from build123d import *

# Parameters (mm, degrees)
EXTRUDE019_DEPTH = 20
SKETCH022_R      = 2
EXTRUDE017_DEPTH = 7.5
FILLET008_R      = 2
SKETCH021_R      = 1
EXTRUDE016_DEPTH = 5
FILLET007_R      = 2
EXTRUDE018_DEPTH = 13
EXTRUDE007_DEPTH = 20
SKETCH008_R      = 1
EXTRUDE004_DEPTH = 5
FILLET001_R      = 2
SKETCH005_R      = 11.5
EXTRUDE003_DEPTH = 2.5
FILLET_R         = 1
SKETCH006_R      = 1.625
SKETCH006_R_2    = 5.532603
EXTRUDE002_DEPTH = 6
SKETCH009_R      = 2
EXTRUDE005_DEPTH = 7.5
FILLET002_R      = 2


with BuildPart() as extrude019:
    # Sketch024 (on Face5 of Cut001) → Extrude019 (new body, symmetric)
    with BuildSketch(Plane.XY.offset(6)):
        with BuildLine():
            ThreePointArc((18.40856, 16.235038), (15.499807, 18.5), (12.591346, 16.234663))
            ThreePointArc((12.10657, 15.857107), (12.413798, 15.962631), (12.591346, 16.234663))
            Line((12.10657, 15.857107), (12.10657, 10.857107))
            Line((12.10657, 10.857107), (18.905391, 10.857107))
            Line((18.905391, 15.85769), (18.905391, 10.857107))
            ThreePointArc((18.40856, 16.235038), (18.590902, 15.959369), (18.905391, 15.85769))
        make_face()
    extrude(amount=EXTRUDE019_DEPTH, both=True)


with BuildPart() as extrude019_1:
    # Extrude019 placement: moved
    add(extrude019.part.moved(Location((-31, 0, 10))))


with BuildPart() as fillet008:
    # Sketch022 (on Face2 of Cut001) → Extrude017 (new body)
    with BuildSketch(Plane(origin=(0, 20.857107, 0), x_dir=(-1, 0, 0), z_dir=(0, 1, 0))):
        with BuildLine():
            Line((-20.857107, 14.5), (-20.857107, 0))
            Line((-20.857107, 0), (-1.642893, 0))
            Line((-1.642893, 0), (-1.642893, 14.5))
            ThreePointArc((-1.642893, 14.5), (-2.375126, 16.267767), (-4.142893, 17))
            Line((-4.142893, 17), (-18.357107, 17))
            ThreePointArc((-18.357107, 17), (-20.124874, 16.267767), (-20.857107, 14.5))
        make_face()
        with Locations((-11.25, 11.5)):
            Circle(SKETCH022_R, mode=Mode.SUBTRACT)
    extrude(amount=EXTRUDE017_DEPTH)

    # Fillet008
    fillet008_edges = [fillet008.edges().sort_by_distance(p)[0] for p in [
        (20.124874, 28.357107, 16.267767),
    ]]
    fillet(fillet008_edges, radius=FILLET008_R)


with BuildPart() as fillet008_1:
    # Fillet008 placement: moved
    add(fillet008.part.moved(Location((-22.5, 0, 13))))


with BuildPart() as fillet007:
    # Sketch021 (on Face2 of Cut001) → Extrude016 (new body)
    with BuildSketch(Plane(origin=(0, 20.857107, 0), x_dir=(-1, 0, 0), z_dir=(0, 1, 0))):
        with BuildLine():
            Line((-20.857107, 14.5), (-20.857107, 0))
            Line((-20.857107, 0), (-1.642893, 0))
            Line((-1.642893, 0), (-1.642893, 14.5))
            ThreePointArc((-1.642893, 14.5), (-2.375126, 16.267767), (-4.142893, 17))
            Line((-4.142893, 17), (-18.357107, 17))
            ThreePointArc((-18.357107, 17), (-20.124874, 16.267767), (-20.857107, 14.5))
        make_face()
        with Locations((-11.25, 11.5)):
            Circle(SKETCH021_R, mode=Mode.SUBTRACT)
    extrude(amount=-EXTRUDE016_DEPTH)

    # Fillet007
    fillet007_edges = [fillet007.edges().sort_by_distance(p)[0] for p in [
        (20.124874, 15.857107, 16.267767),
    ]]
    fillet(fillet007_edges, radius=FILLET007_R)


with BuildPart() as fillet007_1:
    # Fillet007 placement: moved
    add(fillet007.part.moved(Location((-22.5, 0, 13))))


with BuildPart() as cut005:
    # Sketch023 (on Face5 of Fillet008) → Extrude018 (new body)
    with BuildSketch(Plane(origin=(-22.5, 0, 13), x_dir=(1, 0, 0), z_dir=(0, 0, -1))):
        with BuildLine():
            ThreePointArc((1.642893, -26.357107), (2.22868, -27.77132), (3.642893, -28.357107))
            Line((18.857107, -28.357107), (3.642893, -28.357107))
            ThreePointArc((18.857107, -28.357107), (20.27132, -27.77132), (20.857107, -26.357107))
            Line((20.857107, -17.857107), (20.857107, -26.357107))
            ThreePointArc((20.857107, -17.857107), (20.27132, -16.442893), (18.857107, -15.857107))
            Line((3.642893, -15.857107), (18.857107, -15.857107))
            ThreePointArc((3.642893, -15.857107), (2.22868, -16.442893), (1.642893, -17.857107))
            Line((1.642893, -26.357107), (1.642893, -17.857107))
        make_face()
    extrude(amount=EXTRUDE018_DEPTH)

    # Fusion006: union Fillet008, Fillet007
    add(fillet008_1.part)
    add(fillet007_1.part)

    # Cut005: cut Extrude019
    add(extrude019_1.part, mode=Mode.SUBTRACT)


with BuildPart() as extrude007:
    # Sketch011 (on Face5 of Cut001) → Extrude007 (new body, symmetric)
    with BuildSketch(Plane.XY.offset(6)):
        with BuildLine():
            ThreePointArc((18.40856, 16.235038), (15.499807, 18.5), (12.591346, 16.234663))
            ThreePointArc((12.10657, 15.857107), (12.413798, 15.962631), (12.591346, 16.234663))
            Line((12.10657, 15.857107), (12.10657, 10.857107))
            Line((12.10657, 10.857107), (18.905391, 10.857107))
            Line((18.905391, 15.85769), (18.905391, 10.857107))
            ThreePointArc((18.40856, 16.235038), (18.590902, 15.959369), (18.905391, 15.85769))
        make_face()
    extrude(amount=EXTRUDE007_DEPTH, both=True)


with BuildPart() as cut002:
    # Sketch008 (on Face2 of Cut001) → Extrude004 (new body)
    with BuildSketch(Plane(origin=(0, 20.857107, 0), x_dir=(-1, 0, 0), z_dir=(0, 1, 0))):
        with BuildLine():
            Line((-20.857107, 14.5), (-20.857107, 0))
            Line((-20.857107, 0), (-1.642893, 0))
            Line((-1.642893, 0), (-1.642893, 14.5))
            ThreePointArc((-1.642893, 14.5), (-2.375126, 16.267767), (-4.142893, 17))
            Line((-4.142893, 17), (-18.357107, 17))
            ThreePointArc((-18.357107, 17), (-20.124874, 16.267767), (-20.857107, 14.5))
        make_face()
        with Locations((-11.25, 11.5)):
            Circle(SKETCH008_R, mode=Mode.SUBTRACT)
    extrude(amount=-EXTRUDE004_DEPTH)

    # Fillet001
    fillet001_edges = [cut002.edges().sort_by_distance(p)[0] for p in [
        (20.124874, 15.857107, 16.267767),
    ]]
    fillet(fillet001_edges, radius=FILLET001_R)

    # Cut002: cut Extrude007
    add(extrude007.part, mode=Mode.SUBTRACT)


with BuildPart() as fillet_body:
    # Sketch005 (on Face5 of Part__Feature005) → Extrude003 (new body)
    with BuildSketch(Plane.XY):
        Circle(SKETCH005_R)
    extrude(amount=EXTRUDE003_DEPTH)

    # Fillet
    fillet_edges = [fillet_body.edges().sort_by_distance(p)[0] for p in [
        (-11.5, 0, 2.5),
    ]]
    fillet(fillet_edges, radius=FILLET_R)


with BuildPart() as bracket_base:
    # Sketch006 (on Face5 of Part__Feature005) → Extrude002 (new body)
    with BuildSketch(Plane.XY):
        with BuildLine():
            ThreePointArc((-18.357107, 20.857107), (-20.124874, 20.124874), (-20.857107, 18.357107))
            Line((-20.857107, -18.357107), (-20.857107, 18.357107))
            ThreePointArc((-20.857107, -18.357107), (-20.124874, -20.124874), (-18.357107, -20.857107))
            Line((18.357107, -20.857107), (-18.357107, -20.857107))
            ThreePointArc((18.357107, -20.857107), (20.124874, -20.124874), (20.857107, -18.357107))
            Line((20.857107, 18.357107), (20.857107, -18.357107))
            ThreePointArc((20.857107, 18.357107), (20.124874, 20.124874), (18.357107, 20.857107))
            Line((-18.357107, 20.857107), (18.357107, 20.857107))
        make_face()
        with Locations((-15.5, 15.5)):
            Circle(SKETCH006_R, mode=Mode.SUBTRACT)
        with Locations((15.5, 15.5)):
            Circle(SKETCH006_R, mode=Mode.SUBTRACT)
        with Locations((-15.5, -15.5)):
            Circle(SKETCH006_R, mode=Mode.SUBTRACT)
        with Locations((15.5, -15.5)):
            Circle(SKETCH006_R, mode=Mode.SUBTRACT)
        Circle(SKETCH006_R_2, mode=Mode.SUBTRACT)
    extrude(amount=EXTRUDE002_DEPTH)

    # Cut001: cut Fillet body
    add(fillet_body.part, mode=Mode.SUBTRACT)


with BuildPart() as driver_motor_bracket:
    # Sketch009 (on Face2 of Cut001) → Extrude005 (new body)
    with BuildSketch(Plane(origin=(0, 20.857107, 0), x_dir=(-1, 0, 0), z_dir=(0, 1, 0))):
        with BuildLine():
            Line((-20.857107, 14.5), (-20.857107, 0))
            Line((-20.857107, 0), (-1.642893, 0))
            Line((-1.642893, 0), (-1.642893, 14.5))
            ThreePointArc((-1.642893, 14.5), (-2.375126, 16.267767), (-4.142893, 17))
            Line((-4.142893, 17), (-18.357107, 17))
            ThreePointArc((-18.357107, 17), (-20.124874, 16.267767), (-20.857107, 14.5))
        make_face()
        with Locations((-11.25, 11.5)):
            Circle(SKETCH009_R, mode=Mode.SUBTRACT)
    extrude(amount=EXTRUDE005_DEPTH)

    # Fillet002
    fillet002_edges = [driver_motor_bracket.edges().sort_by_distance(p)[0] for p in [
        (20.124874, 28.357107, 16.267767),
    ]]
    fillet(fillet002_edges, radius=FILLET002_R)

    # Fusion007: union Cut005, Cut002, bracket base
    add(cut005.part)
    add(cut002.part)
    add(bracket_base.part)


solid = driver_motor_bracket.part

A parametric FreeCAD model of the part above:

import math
import FreeCAD as App
import Part
import Sketcher
from FreeCAD import Vector


def edges_at(feature, points):
    """Names of the edges that pass closest to the given points."""
    edges = feature.Shape.Edges
    near = lambda p: min(range(len(edges)), key=lambda i: edges[i].distToShape(Part.Vertex(*p))[0])
    return sorted({f"Edge{near(p) + 1}" for p in points})

doc = App.newDocument("Part")
body = doc.addObject("PartDesign::Body", "Body")

sketch1 = body.newObject("Sketcher::SketchObject", "Sketch")
sketch1.AttachmentSupport = (doc.getObject("XY_Plane"), [""])
sketch1.MapMode = "FlatFace"
sketch1.AttachmentOffset = App.Placement(Vector(0, 0, 6), App.Rotation())
sketch1.addGeometry([
    Part.ArcOfCircle(Part.Circle(Vector(15.5, 15.5, 0), Vector(0, 0, 1), 3), math.radians(14.182582), math.radians(165.824805)),
    Part.ArcOfCircle(Part.Circle(Vector(12.106571, 16.357106, 0), Vector(0, 0, 1), 0.499999), math.radians(-90.000091), math.radians(-14.175159)),
    Part.LineSegment(Vector(12.10657, 15.857107, 0), Vector(12.10657, 10.857107, 0)),
    Part.LineSegment(Vector(12.10657, 10.857107, 0), Vector(18.905391, 10.857107, 0)),
    Part.LineSegment(Vector(18.905391, 10.857107, 0), Vector(18.905391, 15.85769, 0)),
    Part.ArcOfCircle(Part.Circle(Vector(18.89332, 16.357544, 0), Vector(0, 0, 1), 0.499999), math.radians(-165.817479), math.radians(-88.616572)),
], False)
sketch1.addConstraint([
    Sketcher.Constraint("Tangent", 0, 2, 1, 2),
    Sketcher.Constraint("Coincident", 1, 1, 2, 1),
    Sketcher.Constraint("Coincident", 2, 2, 3, 1),
    Sketcher.Constraint("Coincident", 3, 2, 4, 1),
    Sketcher.Constraint("Coincident", 4, 2, 5, 2),
    Sketcher.Constraint("Tangent", 5, 1, 0, 1),
    Sketcher.Constraint("Vertical", 2),
    Sketcher.Constraint("Horizontal", 3),
    Sketcher.Constraint("Vertical", 4),
    Sketcher.Constraint("Equal", 1, 5),
    Sketcher.Constraint("Radius", 0, 3.0),
    Sketcher.Constraint("Radius", 1, 0.499999),
    Sketcher.Constraint("DistanceY", 2, 2, 2, 1, 5.0),
    Sketcher.Constraint("DistanceX", -1, 1, 0, 3, 15.5),
    Sketcher.Constraint("DistanceY", -1, 1, 0, 3, 15.5),
    Sketcher.Constraint("DistanceX", 3, 1, 3, 2, 6.798821),
    Sketcher.Constraint("DistanceY", 4, 1, 4, 2, 5.000583),
    Sketcher.Constraint("DistanceX", -1, 1, 1, 3, 12.106571),
    Sketcher.Constraint("DistanceX", -1, 1, 1, 1, 12.10657),
])
pad1 = body.newObject("PartDesign::Pad", "Pad")
pad1.Profile = sketch1
pad1.Length = 40
pad1.Midplane = True
body2 = doc.addObject("PartDesign::Body", "Body001")
doc.recompute()

body.Placement = App.Placement(Vector(-31, 0, 10), App.Rotation(Vector(0, 0, 1), 0))
boolean = body2.newObject("PartDesign::Boolean", "Boolean")
boolean.Type = "Fuse"
boolean.addObjects([body])
body3 = doc.addObject("PartDesign::Body", "Body002")

sketch2 = body3.newObject("Sketcher::SketchObject", "Sketch001")
sketch2.AttachmentSupport = (doc.getObject("XZ_Plane002"), [""])
sketch2.MapMode = "FlatFace"
sketch2.AttachmentOffset = App.Placement(Vector(0, 0, -20.857107), App.Rotation())
sketch2.addGeometry([
    Part.LineSegment(Vector(20.857107, 14.5, 0), Vector(20.857107, 0, 0)),
    Part.LineSegment(Vector(20.857107, 0, 0), Vector(1.642893, 0, 0)),
    Part.LineSegment(Vector(1.642893, 0, 0), Vector(1.642893, 14.5, 0)),
    Part.ArcOfCircle(Part.Circle(Vector(4.142893, 14.5, 0), Vector(0, 0, 1), 2.5), math.radians(89.999996), math.radians(180.000004)),
    Part.LineSegment(Vector(4.142893, 17, 0), Vector(18.357107, 17, 0)),
    Part.ArcOfCircle(Part.Circle(Vector(18.357107, 14.5, 0), Vector(0, 0, 1), 2.5), math.radians(-0.000004), math.radians(90.000004)),
    Part.Circle(Vector(11.25, 11.5, 0), Vector(0, 0, 1), 2),
], False)
sketch2.addConstraint([
    Sketcher.Constraint("Coincident", 0, 2, 1, 1),
    Sketcher.Constraint("Coincident", 1, 2, 2, 1),
    Sketcher.Constraint("Tangent", 2, 2, 3, 2),
    Sketcher.Constraint("Tangent", 3, 1, 4, 1),
    Sketcher.Constraint("Tangent", 4, 2, 5, 2),
    Sketcher.Constraint("Tangent", 5, 1, 0, 1),
    Sketcher.Constraint("Vertical", 0),
    Sketcher.Constraint("Horizontal", 1),
    Sketcher.Constraint("Vertical", 2),
    Sketcher.Constraint("Horizontal", 4),
    Sketcher.Constraint("Equal", 3, 5),
    Sketcher.Constraint("PointOnObject", 0, 2, -1),
    Sketcher.Constraint("Diameter", 6, 4.0),
    Sketcher.Constraint("Radius", 3, 2.5),
    Sketcher.Constraint("DistanceY", 0, 2, 0, 1, 14.5),
    Sketcher.Constraint("DistanceY", 6, 3, 5, 3, 3.0),
    Sketcher.Constraint("DistanceX", -1, 1, 6, 3, 11.25),
    Sketcher.Constraint("DistanceX", 1, 2, 1, 1, 19.214214),
    Sketcher.Constraint("DistanceX", -1, 1, 3, 3, 4.142893),
])
pad2 = body3.newObject("PartDesign::Pad", "Pad001")
pad2.Profile = sketch2
pad2.Length = 7.5
pad2.Reversed = True
doc.recompute()

fillet = body3.newObject("PartDesign::Fillet", "Fillet")
fillet.Base = (pad2, edges_at(pad2, [(20.125, 28.357, 16.268)]))
fillet.Radius = 2
body4 = doc.addObject("PartDesign::Body", "Body003")
doc.recompute()

body3.Placement = App.Placement(Vector(-22.5, 0, 13), App.Rotation(Vector(0, 0, 1), 0))
boolean2 = body4.newObject("PartDesign::Boolean", "Boolean001")
boolean2.Type = "Fuse"
boolean2.addObjects([body3])
body5 = doc.addObject("PartDesign::Body", "Body004")

sketch3 = body5.newObject("Sketcher::SketchObject", "Sketch002")
sketch3.AttachmentSupport = (doc.getObject("XZ_Plane004"), [""])
sketch3.MapMode = "FlatFace"
sketch3.AttachmentOffset = App.Placement(Vector(0, 0, -20.857107), App.Rotation())
sketch3.addGeometry([
    Part.LineSegment(Vector(20.857107, 14.5, 0), Vector(20.857107, 0, 0)),
    Part.LineSegment(Vector(20.857107, 0, 0), Vector(1.642893, 0, 0)),
    Part.LineSegment(Vector(1.642893, 0, 0), Vector(1.642893, 14.5, 0)),
    Part.ArcOfCircle(Part.Circle(Vector(4.142893, 14.5, 0), Vector(0, 0, 1), 2.5), math.radians(89.999996), math.radians(180.000004)),
    Part.LineSegment(Vector(4.142893, 17, 0), Vector(18.357107, 17, 0)),
    Part.ArcOfCircle(Part.Circle(Vector(18.357107, 14.5, 0), Vector(0, 0, 1), 2.5), math.radians(-0.000004), math.radians(90.000004)),
    Part.Circle(Vector(11.25, 11.5, 0), Vector(0, 0, 1), 1),
], False)
sketch3.addConstraint([
    Sketcher.Constraint("Coincident", 0, 2, 1, 1),
    Sketcher.Constraint("Coincident", 1, 2, 2, 1),
    Sketcher.Constraint("Tangent", 2, 2, 3, 2),
    Sketcher.Constraint("Tangent", 3, 1, 4, 1),
    Sketcher.Constraint("Tangent", 4, 2, 5, 2),
    Sketcher.Constraint("Tangent", 5, 1, 0, 1),
    Sketcher.Constraint("Vertical", 0),
    Sketcher.Constraint("Horizontal", 1),
    Sketcher.Constraint("Vertical", 2),
    Sketcher.Constraint("Horizontal", 4),
    Sketcher.Constraint("Equal", 3, 5),
    Sketcher.Constraint("PointOnObject", 0, 2, -1),
    Sketcher.Constraint("Diameter", 6, 2.0),
    Sketcher.Constraint("Radius", 3, 2.5),
    Sketcher.Constraint("DistanceY", 0, 2, 0, 1, 14.5),
    Sketcher.Constraint("DistanceY", 6, 3, 5, 3, 3.0),
    Sketcher.Constraint("DistanceX", -1, 1, 6, 3, 11.25),
    Sketcher.Constraint("DistanceX", 1, 2, 1, 1, 19.214214),
    Sketcher.Constraint("DistanceX", -1, 1, 3, 3, 4.142893),
])
pad3 = body5.newObject("PartDesign::Pad", "Pad002")
pad3.Profile = sketch3
pad3.Length = 5
doc.recompute()

fillet2 = body5.newObject("PartDesign::Fillet", "Fillet001")
fillet2.Base = (pad3, edges_at(pad3, [(20.125, 15.857, 16.268)]))
fillet2.Radius = 2
body6 = doc.addObject("PartDesign::Body", "Body005")
doc.recompute()

body5.Placement = App.Placement(Vector(-22.5, 0, 13), App.Rotation(Vector(0, 0, 1), 0))
boolean3 = body6.newObject("PartDesign::Boolean", "Boolean002")
boolean3.Type = "Fuse"
boolean3.addObjects([body5])
body7 = doc.addObject("PartDesign::Body", "Body006")

sketch4 = body7.newObject("Sketcher::SketchObject", "Sketch003")
sketch4.AttachmentSupport = (doc.getObject("XY_Plane006"), [""])
sketch4.MapMode = "FlatFace"
sketch4.AttachmentOffset = App.Placement(Vector(0, 0, 13), App.Rotation())
sketch4.addGeometry([
    Part.ArcOfCircle(Part.Circle(Vector(-18.857105, 26.357105, 0), Vector(0, 0, 1), 2.000002), math.radians(90.000055), math.radians(179.999945)),
    Part.LineSegment(Vector(-18.857107, 28.357107, 0), Vector(-3.642893, 28.357107, 0)),
    Part.ArcOfCircle(Part.Circle(Vector(-3.642895, 26.357105, 0), Vector(0, 0, 1), 2.000002), math.radians(0.000055), math.radians(89.999945)),
    Part.LineSegment(Vector(-1.642893, 26.357107, 0), Vector(-1.642893, 17.857107, 0)),
    Part.ArcOfCircle(Part.Circle(Vector(-3.642893, 17.857107, 0), Vector(0, 0, 1), 2), math.radians(-89.999994), math.radians(-0.000006)),
    Part.LineSegment(Vector(-3.642893, 15.857107, 0), Vector(-18.857107, 15.857107, 0)),
    Part.ArcOfCircle(Part.Circle(Vector(-18.857107, 17.857107, 0), Vector(0, 0, 1), 2), math.radians(-179.999994), math.radians(-90.000006)),
    Part.LineSegment(Vector(-20.857107, 17.857107, 0), Vector(-20.857107, 26.357107, 0)),
], False)
sketch4.addConstraint([
    Sketcher.Constraint("Tangent", 0, 1, 1, 1),
    Sketcher.Constraint("Tangent", 1, 2, 2, 2),
    Sketcher.Constraint("Tangent", 2, 1, 3, 1),
    Sketcher.Constraint("Tangent", 3, 2, 4, 2),
    Sketcher.Constraint("Tangent", 4, 1, 5, 1),
    Sketcher.Constraint("Tangent", 5, 2, 6, 2),
    Sketcher.Constraint("Tangent", 6, 1, 7, 1),
    Sketcher.Constraint("Tangent", 7, 2, 0, 2),
    Sketcher.Constraint("Horizontal", 1),
    Sketcher.Constraint("Vertical", 3),
    Sketcher.Constraint("Horizontal", 5),
    Sketcher.Constraint("Vertical", 7),
    Sketcher.Constraint("Equal", 0, 2),
    Sketcher.Constraint("Equal", 2, 4),
    Sketcher.Constraint("Equal", 4, 6),
    Sketcher.Constraint("Radius", 0, 2.000002),
    Sketcher.Constraint("DistanceY", 3, 2, 3, 1, 8.5),
    Sketcher.Constraint("DistanceX", 1, 1, 1, 2, 15.214214),
    Sketcher.Constraint("DistanceX", 0, 3, -1, 1, 18.857105),
    Sketcher.Constraint("DistanceY", -1, 1, 0, 3, 26.357105),
])
pad4 = body7.newObject("PartDesign::Pad", "Pad003")
pad4.Profile = sketch4
pad4.Length = 13
pad4.Reversed = True
doc.recompute()

boolean4 = body7.newObject("PartDesign::Boolean", "Boolean003")
boolean4.Type = "Fuse"
boolean4.addObjects([body4])
doc.recompute()

boolean5 = body7.newObject("PartDesign::Boolean", "Boolean004")
boolean5.Type = "Fuse"
boolean5.addObjects([body6])
doc.recompute()

boolean6 = body7.newObject("PartDesign::Boolean", "Boolean005")
boolean6.Type = "Cut"
boolean6.addObjects([body2])
body8 = doc.addObject("PartDesign::Body", "Body007")

sketch5 = body8.newObject("Sketcher::SketchObject", "Sketch004")
sketch5.AttachmentSupport = (doc.getObject("XY_Plane007"), [""])
sketch5.MapMode = "FlatFace"
sketch5.AttachmentOffset = App.Placement(Vector(0, 0, 6), App.Rotation())
sketch5.addGeometry([
    Part.ArcOfCircle(Part.Circle(Vector(15.5, 15.5, 0), Vector(0, 0, 1), 3), math.radians(14.182582), math.radians(165.824805)),
    Part.ArcOfCircle(Part.Circle(Vector(12.106571, 16.357106, 0), Vector(0, 0, 1), 0.499999), math.radians(-90.000091), math.radians(-14.175159)),
    Part.LineSegment(Vector(12.10657, 15.857107, 0), Vector(12.10657, 10.857107, 0)),
    Part.LineSegment(Vector(12.10657, 10.857107, 0), Vector(18.905391, 10.857107, 0)),
    Part.LineSegment(Vector(18.905391, 10.857107, 0), Vector(18.905391, 15.85769, 0)),
    Part.ArcOfCircle(Part.Circle(Vector(18.89332, 16.357544, 0), Vector(0, 0, 1), 0.499999), math.radians(-165.817479), math.radians(-88.616572)),
], False)
sketch5.addConstraint([
    Sketcher.Constraint("Tangent", 0, 2, 1, 2),
    Sketcher.Constraint("Coincident", 1, 1, 2, 1),
    Sketcher.Constraint("Coincident", 2, 2, 3, 1),
    Sketcher.Constraint("Coincident", 3, 2, 4, 1),
    Sketcher.Constraint("Coincident", 4, 2, 5, 2),
    Sketcher.Constraint("Tangent", 5, 1, 0, 1),
    Sketcher.Constraint("Vertical", 2),
    Sketcher.Constraint("Horizontal", 3),
    Sketcher.Constraint("Vertical", 4),
    Sketcher.Constraint("Equal", 1, 5),
    Sketcher.Constraint("Radius", 0, 3.0),
    Sketcher.Constraint("Radius", 1, 0.499999),
    Sketcher.Constraint("DistanceY", 2, 2, 2, 1, 5.0),
    Sketcher.Constraint("DistanceX", -1, 1, 0, 3, 15.5),
    Sketcher.Constraint("DistanceY", -1, 1, 0, 3, 15.5),
    Sketcher.Constraint("DistanceX", 3, 1, 3, 2, 6.798821),
    Sketcher.Constraint("DistanceY", 4, 1, 4, 2, 5.000583),
    Sketcher.Constraint("DistanceX", -1, 1, 1, 3, 12.106571),
    Sketcher.Constraint("DistanceX", -1, 1, 1, 1, 12.10657),
])
pad5 = body8.newObject("PartDesign::Pad", "Pad004")
pad5.Profile = sketch5
pad5.Length = 40
pad5.Midplane = True
body9 = doc.addObject("PartDesign::Body", "Body008")

sketch6 = body9.newObject("Sketcher::SketchObject", "Sketch005")
sketch6.AttachmentSupport = (doc.getObject("XZ_Plane008"), [""])
sketch6.MapMode = "FlatFace"
sketch6.AttachmentOffset = App.Placement(Vector(0, 0, -20.857107), App.Rotation())
sketch6.addGeometry([
    Part.LineSegment(Vector(20.857107, 14.5, 0), Vector(20.857107, 0, 0)),
    Part.LineSegment(Vector(20.857107, 0, 0), Vector(1.642893, 0, 0)),
    Part.LineSegment(Vector(1.642893, 0, 0), Vector(1.642893, 14.5, 0)),
    Part.ArcOfCircle(Part.Circle(Vector(4.142893, 14.5, 0), Vector(0, 0, 1), 2.5), math.radians(89.999996), math.radians(180.000004)),
    Part.LineSegment(Vector(4.142893, 17, 0), Vector(18.357107, 17, 0)),
    Part.ArcOfCircle(Part.Circle(Vector(18.357107, 14.5, 0), Vector(0, 0, 1), 2.5), math.radians(-0.000004), math.radians(90.000004)),
    Part.Circle(Vector(11.25, 11.5, 0), Vector(0, 0, 1), 1),
], False)
sketch6.addConstraint([
    Sketcher.Constraint("Coincident", 0, 2, 1, 1),
    Sketcher.Constraint("Coincident", 1, 2, 2, 1),
    Sketcher.Constraint("Tangent", 2, 2, 3, 2),
    Sketcher.Constraint("Tangent", 3, 1, 4, 1),
    Sketcher.Constraint("Tangent", 4, 2, 5, 2),
    Sketcher.Constraint("Tangent", 5, 1, 0, 1),
    Sketcher.Constraint("Vertical", 0),
    Sketcher.Constraint("Horizontal", 1),
    Sketcher.Constraint("Vertical", 2),
    Sketcher.Constraint("Horizontal", 4),
    Sketcher.Constraint("Equal", 3, 5),
    Sketcher.Constraint("PointOnObject", 0, 2, -1),
    Sketcher.Constraint("Diameter", 6, 2.0),
    Sketcher.Constraint("Radius", 3, 2.5),
    Sketcher.Constraint("DistanceY", 0, 2, 0, 1, 14.5),
    Sketcher.Constraint("DistanceY", 6, 3, 5, 3, 3.0),
    Sketcher.Constraint("DistanceX", -1, 1, 6, 3, 11.25),
    Sketcher.Constraint("DistanceX", 1, 2, 1, 1, 19.214214),
    Sketcher.Constraint("DistanceX", -1, 1, 3, 3, 4.142893),
])
pad6 = body9.newObject("PartDesign::Pad", "Pad005")
pad6.Profile = sketch6
pad6.Length = 5
doc.recompute()

fillet3 = body9.newObject("PartDesign::Fillet", "Fillet002")
fillet3.Base = (pad6, edges_at(pad6, [(20.125, 15.857, 16.268)]))
fillet3.Radius = 2
doc.recompute()

boolean7 = body9.newObject("PartDesign::Boolean", "Boolean006")
boolean7.Type = "Cut"
boolean7.addObjects([body8])
body10 = doc.addObject("PartDesign::Body", "Body009")

sketch7 = body10.newObject("Sketcher::SketchObject", "Sketch006")
sketch7.AttachmentSupport = (doc.getObject("XY_Plane009"), [""])
sketch7.MapMode = "FlatFace"
sketch7.addGeometry(Part.Circle(Vector(0, 0, 0), Vector(0, 0, 1), 11.5), False)
sketch7.addConstraint([
    Sketcher.Constraint("Coincident", 0, 3, -1, 1),
    Sketcher.Constraint("Diameter", 0, 23.0),
])
pad7 = body10.newObject("PartDesign::Pad", "Pad006")
pad7.Profile = sketch7
pad7.Length = 2.5
doc.recompute()

fillet4 = body10.newObject("PartDesign::Fillet", "Fillet003")
fillet4.Base = (pad7, edges_at(pad7, [(-11.5, 0, 2.5)]))
fillet4.Radius = 1
body11 = doc.addObject("PartDesign::Body", "Body010")

sketch8 = body11.newObject("Sketcher::SketchObject", "Sketch007")
sketch8.AttachmentSupport = (doc.getObject("XY_Plane010"), [""])
sketch8.MapMode = "FlatFace"
sketch8.addGeometry([
    Part.ArcOfCircle(Part.Circle(Vector(-18.357107, 18.357107, 0), Vector(0, 0, 1), 2.5), math.radians(89.999996), math.radians(180.000004)),
    Part.LineSegment(Vector(-20.857107, 18.357107, 0), Vector(-20.857107, -18.357107, 0)),
    Part.ArcOfCircle(Part.Circle(Vector(-18.357107, -18.357107, 0), Vector(0, 0, 1), 2.5), math.radians(179.999996), math.radians(270.000004)),
    Part.LineSegment(Vector(-18.357107, -20.857107, 0), Vector(18.357107, -20.857107, 0)),
    Part.ArcOfCircle(Part.Circle(Vector(18.357107, -18.357107, 0), Vector(0, 0, 1), 2.5), math.radians(-90.000004), math.radians(0.000004)),
    Part.LineSegment(Vector(20.857107, -18.357107, 0), Vector(20.857107, 18.357107, 0)),
    Part.ArcOfCircle(Part.Circle(Vector(18.357107, 18.357107, 0), Vector(0, 0, 1), 2.5), math.radians(-0.000004), math.radians(90.000004)),
    Part.LineSegment(Vector(18.357107, 20.857107, 0), Vector(-18.357107, 20.857107, 0)),
    Part.Circle(Vector(-15.5, -15.5, 0), Vector(0, 0, 1), 1.625),
    Part.Circle(Vector(15.5, -15.5, 0), Vector(0, 0, 1), 1.625),
    Part.Circle(Vector(-15.5, 15.5, 0), Vector(0, 0, 1), 1.625),
    Part.Circle(Vector(0, 0, 0), Vector(0, 0, 1), 5.532603),
    Part.Circle(Vector(15.5, 15.5, 0), Vector(0, 0, 1), 1.625),
], False)
sketch8.addConstraint([
    Sketcher.Constraint("Tangent", 0, 2, 1, 1),
    Sketcher.Constraint("Tangent", 1, 2, 2, 1),
    Sketcher.Constraint("Tangent", 2, 2, 3, 1),
    Sketcher.Constraint("Tangent", 3, 2, 4, 1),
    Sketcher.Constraint("Tangent", 4, 2, 5, 1),
    Sketcher.Constraint("Tangent", 5, 2, 6, 1),
    Sketcher.Constraint("Tangent", 6, 2, 7, 1),
    Sketcher.Constraint("Tangent", 7, 2, 0, 1),
    Sketcher.Constraint("Vertical", 1),
    Sketcher.Constraint("Horizontal", 3),
    Sketcher.Constraint("Vertical", 5),
    Sketcher.Constraint("Horizontal", 7),
    Sketcher.Constraint("Coincident", 11, 3, -1, 1),
    Sketcher.Constraint("Equal", 0, 2),
    Sketcher.Constraint("Equal", 2, 4),
    Sketcher.Constraint("Equal", 4, 6),
    Sketcher.Constraint("Equal", 8, 9),
    Sketcher.Constraint("Equal", 9, 10),
    Sketcher.Constraint("Equal", 10, 12),
    Sketcher.Constraint("Symmetric", 0, 3, 4, 3, -1, 1),
    Sketcher.Constraint("Symmetric", 9, 3, 10, 3, -1, 1),
    Sketcher.Constraint("Symmetric", 8, 3, 12, 3, -1, 1),
    Sketcher.Constraint("Symmetric", 8, 3, 9, 3, -2),
    Sketcher.Constraint("Equal", 7, 1),
    Sketcher.Constraint("Radius", 0, 2.5),
    Sketcher.Constraint("Diameter", 8, 3.25),
    Sketcher.Constraint("DistanceX", 8, 3, 9, 3, 31.0),
    Sketcher.Constraint("DistanceY", 8, 3, 10, 3, 31.0),
    Sketcher.Constraint("Diameter", 11, 11.065206),
    Sketcher.Constraint("DistanceX", 3, 1, 3, 2, 36.714214),
])
pad8 = body11.newObject("PartDesign::Pad", "Pad007")
pad8.Profile = sketch8
pad8.Length = 6
doc.recompute()

boolean8 = body11.newObject("PartDesign::Boolean", "Boolean007")
boolean8.Type = "Cut"
boolean8.addObjects([body10])
body12 = doc.addObject("PartDesign::Body", "Body011")
body12.AllowCompound = True

sketch9 = body12.newObject("Sketcher::SketchObject", "Sketch008")
sketch9.AttachmentSupport = (doc.getObject("XZ_Plane011"), [""])
sketch9.MapMode = "FlatFace"
sketch9.AttachmentOffset = App.Placement(Vector(0, 0, -20.857107), App.Rotation())
sketch9.addGeometry([
    Part.LineSegment(Vector(20.857107, 14.5, 0), Vector(20.857107, 0, 0)),
    Part.LineSegment(Vector(20.857107, 0, 0), Vector(1.642893, 0, 0)),
    Part.LineSegment(Vector(1.642893, 0, 0), Vector(1.642893, 14.5, 0)),
    Part.ArcOfCircle(Part.Circle(Vector(4.142893, 14.5, 0), Vector(0, 0, 1), 2.5), math.radians(89.999996), math.radians(180.000004)),
    Part.LineSegment(Vector(4.142893, 17, 0), Vector(18.357107, 17, 0)),
    Part.ArcOfCircle(Part.Circle(Vector(18.357107, 14.5, 0), Vector(0, 0, 1), 2.5), math.radians(-0.000004), math.radians(90.000004)),
    Part.Circle(Vector(11.25, 11.5, 0), Vector(0, 0, 1), 2),
], False)
sketch9.addConstraint([
    Sketcher.Constraint("Coincident", 0, 2, 1, 1),
    Sketcher.Constraint("Coincident", 1, 2, 2, 1),
    Sketcher.Constraint("Tangent", 2, 2, 3, 2),
    Sketcher.Constraint("Tangent", 3, 1, 4, 1),
    Sketcher.Constraint("Tangent", 4, 2, 5, 2),
    Sketcher.Constraint("Tangent", 5, 1, 0, 1),
    Sketcher.Constraint("Vertical", 0),
    Sketcher.Constraint("Horizontal", 1),
    Sketcher.Constraint("Vertical", 2),
    Sketcher.Constraint("Horizontal", 4),
    Sketcher.Constraint("Equal", 3, 5),
    Sketcher.Constraint("PointOnObject", 0, 2, -1),
    Sketcher.Constraint("Diameter", 6, 4.0),
    Sketcher.Constraint("Radius", 3, 2.5),
    Sketcher.Constraint("DistanceY", 0, 2, 0, 1, 14.5),
    Sketcher.Constraint("DistanceY", 6, 3, 5, 3, 3.0),
    Sketcher.Constraint("DistanceX", -1, 1, 6, 3, 11.25),
    Sketcher.Constraint("DistanceX", 1, 2, 1, 1, 19.214214),
    Sketcher.Constraint("DistanceX", -1, 1, 3, 3, 4.142893),
])
pad9 = body12.newObject("PartDesign::Pad", "Pad008")
pad9.Profile = sketch9
pad9.Length = 7.5
pad9.Reversed = True
doc.recompute()

fillet5 = body12.newObject("PartDesign::Fillet", "Fillet004")
fillet5.Base = (pad9, edges_at(pad9, [(20.125, 28.357, 16.268)]))
fillet5.Radius = 2
doc.recompute()

boolean9 = body12.newObject("PartDesign::Boolean", "Boolean008")
boolean9.Type = "Fuse"
boolean9.addObjects([body7])
doc.recompute()

boolean10 = body12.newObject("PartDesign::Boolean", "Boolean009")
boolean10.Type = "Fuse"
boolean10.addObjects([body9])
doc.recompute()

boolean11 = body12.newObject("PartDesign::Boolean", "Boolean010")
boolean11.Type = "Fuse"
boolean11.addObjects([body11])

doc.recompute()
